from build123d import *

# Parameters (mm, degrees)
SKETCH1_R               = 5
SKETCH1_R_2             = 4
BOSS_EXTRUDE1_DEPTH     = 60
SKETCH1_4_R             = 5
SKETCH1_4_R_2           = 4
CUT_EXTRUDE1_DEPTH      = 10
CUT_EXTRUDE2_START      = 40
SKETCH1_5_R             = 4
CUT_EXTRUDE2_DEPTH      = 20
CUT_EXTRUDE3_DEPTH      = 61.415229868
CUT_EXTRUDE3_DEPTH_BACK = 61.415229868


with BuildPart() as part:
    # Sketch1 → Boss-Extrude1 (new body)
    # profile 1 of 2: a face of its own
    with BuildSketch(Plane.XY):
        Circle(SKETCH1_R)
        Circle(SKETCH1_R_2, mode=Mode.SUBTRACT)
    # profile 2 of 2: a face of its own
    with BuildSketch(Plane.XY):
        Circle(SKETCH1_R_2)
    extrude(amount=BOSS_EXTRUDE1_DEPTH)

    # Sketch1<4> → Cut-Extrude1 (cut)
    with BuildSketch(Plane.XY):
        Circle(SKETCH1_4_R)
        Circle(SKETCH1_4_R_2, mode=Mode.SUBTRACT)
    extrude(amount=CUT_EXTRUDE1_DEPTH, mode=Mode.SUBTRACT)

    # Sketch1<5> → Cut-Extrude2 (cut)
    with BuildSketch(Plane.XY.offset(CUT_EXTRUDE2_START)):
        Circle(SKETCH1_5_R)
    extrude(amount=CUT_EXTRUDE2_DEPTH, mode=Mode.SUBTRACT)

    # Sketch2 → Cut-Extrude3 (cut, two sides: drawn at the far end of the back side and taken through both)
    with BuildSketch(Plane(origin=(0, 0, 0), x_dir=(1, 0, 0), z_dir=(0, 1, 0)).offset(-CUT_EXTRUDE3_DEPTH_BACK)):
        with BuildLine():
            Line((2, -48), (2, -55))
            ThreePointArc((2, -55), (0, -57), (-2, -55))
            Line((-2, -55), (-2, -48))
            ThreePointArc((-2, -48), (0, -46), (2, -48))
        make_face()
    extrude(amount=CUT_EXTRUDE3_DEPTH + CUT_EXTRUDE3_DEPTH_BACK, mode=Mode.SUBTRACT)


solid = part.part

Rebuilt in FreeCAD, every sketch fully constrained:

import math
import FreeCAD as App
import Part
import Sketcher
Q = App.Units.Quantity

doc = App.newDocument("Part")
params = doc.addObject("Spreadsheet::Sheet", "Params")
for row, (alias, value) in enumerate([
    ("sketch1_diameter", "10 mm"),
    ("pad1_length", "60 mm"),
    ("sketch2_diameter", "10 mm"),
    ("sketch2_diameter2", "8 mm"),
    ("pocket1_length", "10 mm"),
    ("sketch3_diameter", "8 mm"),
    ("pocket2_length", "20 mm"),
    ("sketch4_radius", "2 mm"),
    ("sketch4_height", "7 mm"),
], start=1):
    params.set(f"A{row}", alias)
    params.set(f"B{row}", "=" + value)
    params.setAlias(f"B{row}", alias)

body = doc.addObject("PartDesign::Body", "Body")

# Sketch on XY plane
sketch1 = body.newObject("Sketcher::SketchObject", "Sketch")
sketch1.AttachmentSupport = (doc.getObject("XY_Plane"), [""])
sketch1.MapMode = "FlatFace"
sketch1.addGeometry(Part.Circle(App.Vector(0, 0, 0), App.Vector(0, 0, 1), 5), False)
sketch1.addConstraint(Sketcher.Constraint("Coincident", 0, 3, -1, 1))
sketch1.addConstraint(Sketcher.Constraint("Diameter", 0, Q("10 mm")))
sketch1.setExpression("Constraints[1]", "Params.sketch1_diameter")
pad1 = body.newObject("PartDesign::Pad", "Pad")
pad1.Profile = sketch1
pad1.setExpression("Length", "Params.pad1_length")

# Sketch on XY plane
sketch2 = body.newObject("Sketcher::SketchObject", "Sketch001")
sketch2.AttachmentSupport = (doc.getObject("XY_Plane"), [""])
sketch2.MapMode = "FlatFace"
sketch2.addGeometry(Part.Circle(App.Vector(0, 0, 0), App.Vector(0, 0, 1), 5), False)
sketch2.addGeometry(Part.Circle(App.Vector(0, 0, 0), App.Vector(0, 0, 1), 4), False)
sketch2.addConstraint(Sketcher.Constraint("Coincident", 0, 3, -1, 1))
sketch2.addConstraint(Sketcher.Constraint("Coincident", 1, 3, -1, 1))
sketch2.addConstraint(Sketcher.Constraint("Diameter", 0, Q("10 mm")))
sketch2.addConstraint(Sketcher.Constraint("Diameter", 1, Q("8 mm")))
sketch2.setExpression("Constraints[2]", "Params.sketch2_diameter")
sketch2.setExpression("Constraints[3]", "Params.sketch2_diameter2")
pocket1 = body.newObject("PartDesign::Pocket", "Pocket")
pocket1.Profile = sketch2
pocket1.setExpression("Length", "Params.pocket1_length")
pocket1.Reversed = True

# Sketch on XY plane
sketch3 = body.newObject("Sketcher::SketchObject", "Sketch002")
sketch3.AttachmentSupport = (doc.getObject("XY_Plane"), [""])
sketch3.MapMode = "FlatFace"
sketch3.AttachmentOffset = App.Placement(App.Vector(0, 0, 40), App.Rotation())
sketch3.addGeometry(Part.Circle(App.Vector(0, 0, 0), App.Vector(0, 0, 1), 4), False)
sketch3.addConstraint(Sketcher.Constraint("Coincident", 0, 3, -1, 1))
sketch3.addConstraint(Sketcher.Constraint("Diameter", 0, Q("8 mm")))
sketch3.setExpression("Constraints[1]", "Params.sketch3_diameter")
pocket2 = body.newObject("PartDesign::Pocket", "Pocket001")
pocket2.Profile = sketch3
pocket2.setExpression("Length", "Params.pocket2_length")
pocket2.Reversed = True

# Sketch on XZ plane
sketch4 = body.newObject("Sketcher::SketchObject", "Sketch003")
sketch4.AttachmentSupport = (doc.getObject("XZ_Plane"), [""])
sketch4.MapMode = "FlatFace"
sketch4.addGeometry(Part.LineSegment(App.Vector(2, 55, 0), App.Vector(2, 48, 0)), False)
sketch4.addGeometry(Part.ArcOfCircle(Part.Circle(App.Vector(0, 48, 0), App.Vector(0, 0, 1), 2), math.radians(180), math.radians(360)), False)
sketch4.addGeometry(Part.LineSegment(App.Vector(-2, 48, 0), App.Vector(-2, 55, 0)), False)
sketch4.addGeometry(Part.ArcOfCircle(Part.Circle(App.Vector(0, 55, 0), App.Vector(0, 0, 1), 2), math.radians(0), math.radians(180)), False)
sketch4.addConstraint(Sketcher.Constraint("Tangent", 0, 2, 1, 2))
sketch4.addConstraint(Sketcher.Constraint("Tangent", 1, 1, 2, 1))
sketch4.addConstraint(Sketcher.Constraint("Tangent", 2, 2, 3, 2))
sketch4.addConstraint(Sketcher.Constraint("Tangent", 3, 1, 0, 1))
sketch4.addConstraint(Sketcher.Constraint("Vertical", 0))
sketch4.addConstraint(Sketcher.Constraint("Vertical", 2))
sketch4.addConstraint(Sketcher.Constraint("PointOnObject", 1, 3, -2))
sketch4.addConstraint(Sketcher.Constraint("Radius", 1, Q("2 mm")))
sketch4.addConstraint(Sketcher.Constraint("DistanceY", 0, 2, 0, 1, Q("7 mm")))
sketch4.addConstraint(Sketcher.Constraint("DistanceY", -1, 1, 1, 3, Q("48 mm")))
sketch4.setExpression("Constraints[7]", "Params.sketch4_radius")
sketch4.setExpression("Constraints[8]", "Params.sketch4_height")
pocket3 = body.newObject("PartDesign::Pocket", "Pocket002")
pocket3.Profile = sketch4
pocket3.Type = "ThroughAll"
pocket3.Midplane = True

doc.recompute()
